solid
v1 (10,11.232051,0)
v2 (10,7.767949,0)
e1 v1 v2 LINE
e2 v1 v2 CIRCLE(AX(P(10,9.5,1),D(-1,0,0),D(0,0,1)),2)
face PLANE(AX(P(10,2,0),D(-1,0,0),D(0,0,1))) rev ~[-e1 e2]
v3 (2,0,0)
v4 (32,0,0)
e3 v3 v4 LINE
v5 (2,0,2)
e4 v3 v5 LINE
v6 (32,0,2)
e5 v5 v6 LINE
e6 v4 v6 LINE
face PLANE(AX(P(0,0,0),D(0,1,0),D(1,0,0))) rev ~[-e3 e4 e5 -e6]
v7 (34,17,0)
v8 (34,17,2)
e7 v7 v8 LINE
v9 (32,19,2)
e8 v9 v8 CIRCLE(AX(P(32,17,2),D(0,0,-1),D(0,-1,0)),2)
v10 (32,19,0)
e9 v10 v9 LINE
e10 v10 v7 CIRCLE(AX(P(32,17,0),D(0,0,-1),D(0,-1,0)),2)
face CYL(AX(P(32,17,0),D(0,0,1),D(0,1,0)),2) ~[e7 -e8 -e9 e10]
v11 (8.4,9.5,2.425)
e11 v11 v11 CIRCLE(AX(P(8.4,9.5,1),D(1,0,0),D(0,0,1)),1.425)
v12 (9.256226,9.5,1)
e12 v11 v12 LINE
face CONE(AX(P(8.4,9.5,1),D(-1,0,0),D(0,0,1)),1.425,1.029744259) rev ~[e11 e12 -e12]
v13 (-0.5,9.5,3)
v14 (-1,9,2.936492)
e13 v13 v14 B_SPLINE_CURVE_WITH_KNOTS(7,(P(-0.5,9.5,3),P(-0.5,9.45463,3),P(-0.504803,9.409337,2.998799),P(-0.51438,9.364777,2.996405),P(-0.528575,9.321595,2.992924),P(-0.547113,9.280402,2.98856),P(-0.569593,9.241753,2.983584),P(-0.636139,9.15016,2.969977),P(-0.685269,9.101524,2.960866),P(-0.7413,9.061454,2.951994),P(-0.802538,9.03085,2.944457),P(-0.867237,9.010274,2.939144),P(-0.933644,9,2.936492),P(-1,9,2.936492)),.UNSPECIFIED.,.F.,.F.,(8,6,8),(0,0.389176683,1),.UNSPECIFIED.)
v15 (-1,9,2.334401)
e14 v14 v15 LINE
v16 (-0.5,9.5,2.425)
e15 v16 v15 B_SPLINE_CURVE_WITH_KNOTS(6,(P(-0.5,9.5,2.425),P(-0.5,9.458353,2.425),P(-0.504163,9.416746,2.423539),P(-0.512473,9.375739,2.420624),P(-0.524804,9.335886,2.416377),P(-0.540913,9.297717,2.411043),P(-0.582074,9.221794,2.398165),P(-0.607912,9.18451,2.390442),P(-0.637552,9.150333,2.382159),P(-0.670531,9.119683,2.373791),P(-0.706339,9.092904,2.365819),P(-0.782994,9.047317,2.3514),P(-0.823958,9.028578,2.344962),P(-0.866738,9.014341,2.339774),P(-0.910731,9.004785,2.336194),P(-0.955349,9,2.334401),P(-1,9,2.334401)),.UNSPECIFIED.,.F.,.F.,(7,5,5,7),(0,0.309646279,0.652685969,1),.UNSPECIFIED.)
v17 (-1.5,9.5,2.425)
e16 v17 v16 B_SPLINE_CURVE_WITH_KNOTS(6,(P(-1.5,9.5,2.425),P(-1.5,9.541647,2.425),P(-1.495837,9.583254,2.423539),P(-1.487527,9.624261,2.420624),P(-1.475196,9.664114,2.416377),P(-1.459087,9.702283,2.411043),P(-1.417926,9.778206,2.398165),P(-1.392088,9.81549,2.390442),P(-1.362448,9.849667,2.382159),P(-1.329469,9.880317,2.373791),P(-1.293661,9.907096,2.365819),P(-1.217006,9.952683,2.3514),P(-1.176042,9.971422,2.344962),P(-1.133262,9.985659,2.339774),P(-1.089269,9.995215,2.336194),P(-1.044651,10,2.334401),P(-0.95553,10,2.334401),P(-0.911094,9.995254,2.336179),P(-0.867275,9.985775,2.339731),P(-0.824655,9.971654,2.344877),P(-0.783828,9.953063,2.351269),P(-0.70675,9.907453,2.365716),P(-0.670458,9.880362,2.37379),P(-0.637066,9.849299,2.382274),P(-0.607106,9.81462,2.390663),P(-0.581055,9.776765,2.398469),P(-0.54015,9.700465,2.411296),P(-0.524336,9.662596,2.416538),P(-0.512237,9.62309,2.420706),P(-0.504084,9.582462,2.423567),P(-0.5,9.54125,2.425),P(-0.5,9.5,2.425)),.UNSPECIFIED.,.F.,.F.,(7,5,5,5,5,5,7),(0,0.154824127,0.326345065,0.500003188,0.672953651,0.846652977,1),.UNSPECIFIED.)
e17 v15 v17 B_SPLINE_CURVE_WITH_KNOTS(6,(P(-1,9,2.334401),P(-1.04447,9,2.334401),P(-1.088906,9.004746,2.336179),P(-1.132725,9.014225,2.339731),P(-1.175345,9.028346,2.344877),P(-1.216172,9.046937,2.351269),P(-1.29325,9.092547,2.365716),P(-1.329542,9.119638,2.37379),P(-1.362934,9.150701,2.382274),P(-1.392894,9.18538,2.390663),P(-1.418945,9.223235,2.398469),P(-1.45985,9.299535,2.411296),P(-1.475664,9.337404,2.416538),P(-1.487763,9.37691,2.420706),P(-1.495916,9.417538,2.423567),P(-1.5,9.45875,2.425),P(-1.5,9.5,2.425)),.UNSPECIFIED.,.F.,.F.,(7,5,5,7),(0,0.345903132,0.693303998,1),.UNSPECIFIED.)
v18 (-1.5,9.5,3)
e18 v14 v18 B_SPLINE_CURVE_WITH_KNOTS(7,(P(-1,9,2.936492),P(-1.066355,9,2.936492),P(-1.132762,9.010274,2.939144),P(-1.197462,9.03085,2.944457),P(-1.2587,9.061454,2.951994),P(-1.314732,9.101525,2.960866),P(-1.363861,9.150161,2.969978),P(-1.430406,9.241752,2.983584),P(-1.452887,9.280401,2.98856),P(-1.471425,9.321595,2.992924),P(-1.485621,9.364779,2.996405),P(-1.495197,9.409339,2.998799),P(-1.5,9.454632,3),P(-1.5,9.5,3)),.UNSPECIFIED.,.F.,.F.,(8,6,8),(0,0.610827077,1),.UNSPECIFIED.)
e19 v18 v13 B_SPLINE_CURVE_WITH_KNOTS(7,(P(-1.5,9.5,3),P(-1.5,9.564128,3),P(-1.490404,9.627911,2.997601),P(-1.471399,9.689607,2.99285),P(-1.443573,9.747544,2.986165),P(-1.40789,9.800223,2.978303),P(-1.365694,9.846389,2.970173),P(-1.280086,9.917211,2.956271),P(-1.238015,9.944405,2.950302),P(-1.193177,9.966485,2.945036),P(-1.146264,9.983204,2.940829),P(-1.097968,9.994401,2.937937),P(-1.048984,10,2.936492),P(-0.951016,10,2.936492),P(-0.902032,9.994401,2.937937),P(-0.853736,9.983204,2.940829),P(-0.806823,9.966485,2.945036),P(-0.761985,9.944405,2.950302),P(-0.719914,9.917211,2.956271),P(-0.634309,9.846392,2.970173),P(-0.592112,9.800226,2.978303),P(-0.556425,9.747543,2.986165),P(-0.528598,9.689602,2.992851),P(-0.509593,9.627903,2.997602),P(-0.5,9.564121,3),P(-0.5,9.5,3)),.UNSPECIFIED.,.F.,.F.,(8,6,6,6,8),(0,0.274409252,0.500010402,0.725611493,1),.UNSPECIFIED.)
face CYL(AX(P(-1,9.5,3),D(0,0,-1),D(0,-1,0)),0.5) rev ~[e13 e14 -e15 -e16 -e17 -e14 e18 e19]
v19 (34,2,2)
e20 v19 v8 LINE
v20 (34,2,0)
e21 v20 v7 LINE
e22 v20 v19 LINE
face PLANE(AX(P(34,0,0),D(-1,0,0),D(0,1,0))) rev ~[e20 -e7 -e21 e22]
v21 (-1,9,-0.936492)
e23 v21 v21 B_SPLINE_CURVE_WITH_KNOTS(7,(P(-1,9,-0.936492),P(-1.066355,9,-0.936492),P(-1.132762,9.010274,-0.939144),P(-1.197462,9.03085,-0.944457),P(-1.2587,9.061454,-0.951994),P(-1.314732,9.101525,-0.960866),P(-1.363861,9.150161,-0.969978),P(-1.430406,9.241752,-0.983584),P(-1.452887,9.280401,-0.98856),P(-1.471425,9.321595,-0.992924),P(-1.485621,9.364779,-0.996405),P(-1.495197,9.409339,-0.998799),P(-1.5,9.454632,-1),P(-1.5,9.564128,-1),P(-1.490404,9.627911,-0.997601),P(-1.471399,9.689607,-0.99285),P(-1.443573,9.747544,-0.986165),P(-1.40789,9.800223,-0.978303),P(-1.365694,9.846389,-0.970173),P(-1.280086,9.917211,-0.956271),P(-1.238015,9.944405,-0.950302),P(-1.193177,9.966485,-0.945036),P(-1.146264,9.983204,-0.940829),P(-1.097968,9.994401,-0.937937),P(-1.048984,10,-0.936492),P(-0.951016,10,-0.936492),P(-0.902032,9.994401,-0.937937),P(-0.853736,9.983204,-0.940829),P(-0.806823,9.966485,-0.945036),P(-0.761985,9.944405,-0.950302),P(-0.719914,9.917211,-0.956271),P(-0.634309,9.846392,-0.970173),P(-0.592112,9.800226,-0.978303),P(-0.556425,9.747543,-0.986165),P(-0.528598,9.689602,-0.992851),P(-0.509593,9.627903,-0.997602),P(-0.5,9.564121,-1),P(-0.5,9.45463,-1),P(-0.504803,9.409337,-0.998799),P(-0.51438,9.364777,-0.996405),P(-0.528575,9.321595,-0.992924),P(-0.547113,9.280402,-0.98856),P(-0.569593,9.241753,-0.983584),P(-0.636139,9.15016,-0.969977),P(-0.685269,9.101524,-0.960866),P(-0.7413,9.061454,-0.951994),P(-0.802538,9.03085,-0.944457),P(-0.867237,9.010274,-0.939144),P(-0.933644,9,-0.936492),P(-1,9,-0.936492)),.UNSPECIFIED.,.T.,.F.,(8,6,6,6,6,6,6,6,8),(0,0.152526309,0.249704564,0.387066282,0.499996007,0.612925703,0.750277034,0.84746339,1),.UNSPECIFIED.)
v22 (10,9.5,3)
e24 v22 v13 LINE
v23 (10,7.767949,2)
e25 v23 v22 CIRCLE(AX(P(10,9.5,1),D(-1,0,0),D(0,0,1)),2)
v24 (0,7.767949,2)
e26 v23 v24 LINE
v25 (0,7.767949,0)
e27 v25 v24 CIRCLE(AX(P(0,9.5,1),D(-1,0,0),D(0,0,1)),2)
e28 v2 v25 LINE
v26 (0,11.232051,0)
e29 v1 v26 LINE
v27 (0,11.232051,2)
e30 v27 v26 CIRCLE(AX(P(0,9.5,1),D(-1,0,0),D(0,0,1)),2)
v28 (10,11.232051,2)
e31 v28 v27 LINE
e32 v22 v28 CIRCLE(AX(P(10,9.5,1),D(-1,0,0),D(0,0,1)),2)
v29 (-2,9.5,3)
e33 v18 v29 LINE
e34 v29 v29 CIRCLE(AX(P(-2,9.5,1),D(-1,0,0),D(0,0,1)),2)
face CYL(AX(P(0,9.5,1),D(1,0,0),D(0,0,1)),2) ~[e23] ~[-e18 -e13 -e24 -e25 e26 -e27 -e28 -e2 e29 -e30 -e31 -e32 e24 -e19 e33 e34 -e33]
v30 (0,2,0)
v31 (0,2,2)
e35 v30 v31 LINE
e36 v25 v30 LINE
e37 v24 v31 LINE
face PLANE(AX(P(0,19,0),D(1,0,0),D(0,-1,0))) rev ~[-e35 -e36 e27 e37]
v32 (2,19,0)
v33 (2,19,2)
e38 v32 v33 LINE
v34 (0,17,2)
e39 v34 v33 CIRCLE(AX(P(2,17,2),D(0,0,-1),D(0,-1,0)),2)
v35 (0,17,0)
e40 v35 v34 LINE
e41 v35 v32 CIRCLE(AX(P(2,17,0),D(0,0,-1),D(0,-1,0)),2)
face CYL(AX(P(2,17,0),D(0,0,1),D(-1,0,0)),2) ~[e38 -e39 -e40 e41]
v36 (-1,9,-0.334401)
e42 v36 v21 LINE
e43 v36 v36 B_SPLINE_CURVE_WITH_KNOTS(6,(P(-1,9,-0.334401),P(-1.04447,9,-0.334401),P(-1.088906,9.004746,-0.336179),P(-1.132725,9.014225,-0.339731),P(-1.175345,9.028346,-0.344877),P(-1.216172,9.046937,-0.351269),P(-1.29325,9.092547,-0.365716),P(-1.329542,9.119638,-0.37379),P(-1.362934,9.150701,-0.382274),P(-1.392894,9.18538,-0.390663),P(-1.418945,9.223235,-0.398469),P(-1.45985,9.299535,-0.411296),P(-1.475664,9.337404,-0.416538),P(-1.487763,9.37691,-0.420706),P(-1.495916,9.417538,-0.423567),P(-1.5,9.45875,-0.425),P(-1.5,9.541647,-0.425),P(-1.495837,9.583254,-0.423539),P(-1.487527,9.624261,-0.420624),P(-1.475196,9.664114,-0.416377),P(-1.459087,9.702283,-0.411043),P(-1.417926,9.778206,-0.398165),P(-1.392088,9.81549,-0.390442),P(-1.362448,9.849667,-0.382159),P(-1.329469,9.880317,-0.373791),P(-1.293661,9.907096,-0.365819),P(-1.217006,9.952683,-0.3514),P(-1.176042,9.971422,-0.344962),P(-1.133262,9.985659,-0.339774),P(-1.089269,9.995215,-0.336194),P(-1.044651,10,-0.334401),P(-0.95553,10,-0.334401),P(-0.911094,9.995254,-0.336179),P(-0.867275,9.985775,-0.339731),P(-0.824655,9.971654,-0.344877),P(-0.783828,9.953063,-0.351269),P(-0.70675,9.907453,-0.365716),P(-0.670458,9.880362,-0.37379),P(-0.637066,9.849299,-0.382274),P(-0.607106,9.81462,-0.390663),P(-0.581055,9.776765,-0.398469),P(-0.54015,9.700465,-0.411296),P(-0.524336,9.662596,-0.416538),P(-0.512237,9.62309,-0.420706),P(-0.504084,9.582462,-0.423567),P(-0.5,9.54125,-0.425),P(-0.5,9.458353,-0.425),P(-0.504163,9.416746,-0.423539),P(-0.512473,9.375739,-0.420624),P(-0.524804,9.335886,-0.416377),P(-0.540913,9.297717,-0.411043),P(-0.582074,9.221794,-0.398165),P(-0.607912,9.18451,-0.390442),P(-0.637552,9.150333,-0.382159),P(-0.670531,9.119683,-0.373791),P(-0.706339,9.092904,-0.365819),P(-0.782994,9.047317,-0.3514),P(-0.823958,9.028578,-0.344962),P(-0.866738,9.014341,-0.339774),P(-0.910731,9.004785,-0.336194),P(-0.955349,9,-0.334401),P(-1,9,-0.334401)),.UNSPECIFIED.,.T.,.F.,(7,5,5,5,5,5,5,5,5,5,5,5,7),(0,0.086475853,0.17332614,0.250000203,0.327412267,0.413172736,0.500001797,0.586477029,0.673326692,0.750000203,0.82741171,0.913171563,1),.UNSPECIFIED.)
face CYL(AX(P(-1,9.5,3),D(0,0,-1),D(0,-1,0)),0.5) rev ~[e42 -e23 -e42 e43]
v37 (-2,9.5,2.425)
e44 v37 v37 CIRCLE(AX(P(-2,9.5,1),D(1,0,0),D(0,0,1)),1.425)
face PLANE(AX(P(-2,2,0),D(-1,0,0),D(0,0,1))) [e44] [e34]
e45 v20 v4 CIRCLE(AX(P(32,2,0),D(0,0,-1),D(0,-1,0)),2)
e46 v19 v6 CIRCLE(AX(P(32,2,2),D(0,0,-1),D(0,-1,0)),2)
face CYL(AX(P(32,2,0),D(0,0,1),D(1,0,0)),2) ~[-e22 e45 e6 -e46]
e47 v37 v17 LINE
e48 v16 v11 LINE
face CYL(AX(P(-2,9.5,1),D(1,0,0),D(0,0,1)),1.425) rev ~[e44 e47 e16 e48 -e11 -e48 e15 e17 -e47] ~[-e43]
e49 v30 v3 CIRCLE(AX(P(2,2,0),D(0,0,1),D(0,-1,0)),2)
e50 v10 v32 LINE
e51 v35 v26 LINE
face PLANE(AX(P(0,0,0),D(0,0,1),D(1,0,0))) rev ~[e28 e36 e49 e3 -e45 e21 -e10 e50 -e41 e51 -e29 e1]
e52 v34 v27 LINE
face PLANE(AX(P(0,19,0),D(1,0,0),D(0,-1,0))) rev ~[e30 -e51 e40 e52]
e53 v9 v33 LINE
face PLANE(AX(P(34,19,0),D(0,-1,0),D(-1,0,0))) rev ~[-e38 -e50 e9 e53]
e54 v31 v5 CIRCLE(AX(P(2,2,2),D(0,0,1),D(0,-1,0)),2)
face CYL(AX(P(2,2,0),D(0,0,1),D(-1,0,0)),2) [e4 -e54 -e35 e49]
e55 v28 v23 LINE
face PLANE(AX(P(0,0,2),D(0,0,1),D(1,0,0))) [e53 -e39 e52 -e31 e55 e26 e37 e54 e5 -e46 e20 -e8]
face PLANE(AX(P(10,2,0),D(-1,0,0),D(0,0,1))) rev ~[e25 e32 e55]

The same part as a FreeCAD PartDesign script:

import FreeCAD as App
import Part
import Sketcher


def edges_at(feature, points):
    """Names of the edges that pass closest to the given points."""
    edges = feature.Shape.Edges
    near = lambda p: min(range(len(edges)), key=lambda i: edges[i].distToShape(Part.Vertex(*p))[0])
    return sorted({f"Edge{near(p) + 1}" for p in points})


def add_polygon(sketch, points):
    """Adds a closed chain of lines whose ends are joined by coincident constraints."""
    first, n = sketch.GeometryCount, len(points)
    for a, b in zip(points, points[1:] + points[:1]):
        sketch.addGeometry(Part.LineSegment(App.Vector(*a, 0), App.Vector(*b, 0)), False)
    for i in range(n):
        sketch.addConstraint(Sketcher.Constraint("Coincident", first + i, 2, first + (i + 1) % n, 1))

doc = App.newDocument("Part")
body = doc.addObject("PartDesign::Body", "Body")

sketch1 = doc.addObject("Sketcher::SketchObject", "Sketch")
body.addObject(sketch1)
sketch1.AttachmentSupport = (doc.XY_Plane, [""])
sketch1.MapMode = "FlatFace"
add_polygon(sketch1, [(0, 19), (0, 0), (34, 0), (34, 19)])
sketch1.addConstraint([
    Sketcher.Constraint("Vertical", 0),
    Sketcher.Constraint("Horizontal", 1),
    Sketcher.Constraint("Vertical", 2),
    Sketcher.Constraint("Horizontal", 3),
    Sketcher.Constraint("Coincident", 0, 2, -1, 1),
    Sketcher.Constraint("DistanceX", 1, 1, 1, 2, 34.0),
    Sketcher.Constraint("DistanceY", 0, 2, 0, 1, 19.0),
])
pad1 = doc.addObject("PartDesign::Pad", "Pad")
body.addObject(pad1)
pad1.Profile = sketch1
pad1.Length = 2
doc.recompute()

fillet = doc.addObject("PartDesign::Fillet", "Fillet")
body.addObject(fillet)
fillet.Base = (pad1, edges_at(pad1, [
    (34, 19, 1),
    (34, 0, 1),
    (0, 19, 1),
    (0, 0, 1),
]))
fillet.Radius = 2

sketch2 = doc.addObject("Sketcher::SketchObject", "Sketch001")
body.addObject(sketch2)
sketch2.AttachmentSupport = (doc.YZ_Plane, [""])
sketch2.MapMode = "FlatFace"
sketch2.addGeometry(Part.Circle(App.Vector(9.5, 1, 0), App.Vector(0, 0, 1), 2), False)
sketch2.addConstraint([
    Sketcher.Constraint("Diameter", 0, 4.0),
    Sketcher.Constraint("DistanceY", -1, 1, 0, 3, 1.0),
    Sketcher.Constraint("DistanceX", -1, 1, 0, 3, 9.5),
])
pad2 = doc.addObject("PartDesign::Pad", "Pad001")
body.addObject(pad2)
pad2.Profile = sketch2
pad2.Type = "TwoLengths"
pad2.Length = 2
pad2.Length2 = 10
pad2.Reversed = True

sketch3 = doc.addObject("Sketcher::SketchObject", "Sketch002")
body.addObject(sketch3)
sketch3.AttachmentSupport = (doc.YZ_Plane, [""])
sketch3.MapMode = "FlatFace"
sketch3.AttachmentOffset = App.Placement(App.Vector(0, 0, -2), App.Rotation())
sketch3.addGeometry(Part.Circle(App.Vector(9.5, 1, 0), App.Vector(0, 0, 1), 1.425), False)
sketch3.addConstraint([
    Sketcher.Constraint("Diameter", 0, 2.85),
    Sketcher.Constraint("DistanceY", -1, 1, 0, 3, 1.0),
    Sketcher.Constraint("DistanceX", -1, 1, 0, 3, 9.5),
])
doc.recompute()
hole = doc.addObject("PartDesign::Hole", "Hole")
body.addObject(hole)
hole.Profile = sketch3
hole.ThreadType = "None"
hole.Diameter = 2.85
hole.DepthType = "Dimension"
hole.Depth = 10.4
hole.DrillPoint = "Angled"
hole.DrillPointAngle = 118
hole.Reversed = True

sketch4 = doc.addObject("Sketcher::SketchObject", "Sketch003")
body.addObject(sketch4)
sketch4.AttachmentSupport = (doc.XY_Plane, [""])
sketch4.MapMode = "FlatFace"
sketch4.AttachmentOffset = App.Placement(App.Vector(0, 0, 3), App.Rotation())
sketch4.addGeometry(Part.Circle(App.Vector(-1, 9.5, 0), App.Vector(0, 0, 1), 0.5), False)
sketch4.addConstraint([
    Sketcher.Constraint("Diameter", 0, 1.0),
    Sketcher.Constraint("DistanceX", 0, 3, -1, 1, 1.0),
    Sketcher.Constraint("DistanceY", -1, 1, 0, 3, 9.5),
])
doc.recompute()
hole2 = doc.addObject("PartDesign::Hole", "Hole001")
body.addObject(hole2)
hole2.Profile = sketch4
hole2.ThreadType = "None"
hole2.Diameter = 1
hole2.DepthType = "ThroughAll"

doc.recompute()
